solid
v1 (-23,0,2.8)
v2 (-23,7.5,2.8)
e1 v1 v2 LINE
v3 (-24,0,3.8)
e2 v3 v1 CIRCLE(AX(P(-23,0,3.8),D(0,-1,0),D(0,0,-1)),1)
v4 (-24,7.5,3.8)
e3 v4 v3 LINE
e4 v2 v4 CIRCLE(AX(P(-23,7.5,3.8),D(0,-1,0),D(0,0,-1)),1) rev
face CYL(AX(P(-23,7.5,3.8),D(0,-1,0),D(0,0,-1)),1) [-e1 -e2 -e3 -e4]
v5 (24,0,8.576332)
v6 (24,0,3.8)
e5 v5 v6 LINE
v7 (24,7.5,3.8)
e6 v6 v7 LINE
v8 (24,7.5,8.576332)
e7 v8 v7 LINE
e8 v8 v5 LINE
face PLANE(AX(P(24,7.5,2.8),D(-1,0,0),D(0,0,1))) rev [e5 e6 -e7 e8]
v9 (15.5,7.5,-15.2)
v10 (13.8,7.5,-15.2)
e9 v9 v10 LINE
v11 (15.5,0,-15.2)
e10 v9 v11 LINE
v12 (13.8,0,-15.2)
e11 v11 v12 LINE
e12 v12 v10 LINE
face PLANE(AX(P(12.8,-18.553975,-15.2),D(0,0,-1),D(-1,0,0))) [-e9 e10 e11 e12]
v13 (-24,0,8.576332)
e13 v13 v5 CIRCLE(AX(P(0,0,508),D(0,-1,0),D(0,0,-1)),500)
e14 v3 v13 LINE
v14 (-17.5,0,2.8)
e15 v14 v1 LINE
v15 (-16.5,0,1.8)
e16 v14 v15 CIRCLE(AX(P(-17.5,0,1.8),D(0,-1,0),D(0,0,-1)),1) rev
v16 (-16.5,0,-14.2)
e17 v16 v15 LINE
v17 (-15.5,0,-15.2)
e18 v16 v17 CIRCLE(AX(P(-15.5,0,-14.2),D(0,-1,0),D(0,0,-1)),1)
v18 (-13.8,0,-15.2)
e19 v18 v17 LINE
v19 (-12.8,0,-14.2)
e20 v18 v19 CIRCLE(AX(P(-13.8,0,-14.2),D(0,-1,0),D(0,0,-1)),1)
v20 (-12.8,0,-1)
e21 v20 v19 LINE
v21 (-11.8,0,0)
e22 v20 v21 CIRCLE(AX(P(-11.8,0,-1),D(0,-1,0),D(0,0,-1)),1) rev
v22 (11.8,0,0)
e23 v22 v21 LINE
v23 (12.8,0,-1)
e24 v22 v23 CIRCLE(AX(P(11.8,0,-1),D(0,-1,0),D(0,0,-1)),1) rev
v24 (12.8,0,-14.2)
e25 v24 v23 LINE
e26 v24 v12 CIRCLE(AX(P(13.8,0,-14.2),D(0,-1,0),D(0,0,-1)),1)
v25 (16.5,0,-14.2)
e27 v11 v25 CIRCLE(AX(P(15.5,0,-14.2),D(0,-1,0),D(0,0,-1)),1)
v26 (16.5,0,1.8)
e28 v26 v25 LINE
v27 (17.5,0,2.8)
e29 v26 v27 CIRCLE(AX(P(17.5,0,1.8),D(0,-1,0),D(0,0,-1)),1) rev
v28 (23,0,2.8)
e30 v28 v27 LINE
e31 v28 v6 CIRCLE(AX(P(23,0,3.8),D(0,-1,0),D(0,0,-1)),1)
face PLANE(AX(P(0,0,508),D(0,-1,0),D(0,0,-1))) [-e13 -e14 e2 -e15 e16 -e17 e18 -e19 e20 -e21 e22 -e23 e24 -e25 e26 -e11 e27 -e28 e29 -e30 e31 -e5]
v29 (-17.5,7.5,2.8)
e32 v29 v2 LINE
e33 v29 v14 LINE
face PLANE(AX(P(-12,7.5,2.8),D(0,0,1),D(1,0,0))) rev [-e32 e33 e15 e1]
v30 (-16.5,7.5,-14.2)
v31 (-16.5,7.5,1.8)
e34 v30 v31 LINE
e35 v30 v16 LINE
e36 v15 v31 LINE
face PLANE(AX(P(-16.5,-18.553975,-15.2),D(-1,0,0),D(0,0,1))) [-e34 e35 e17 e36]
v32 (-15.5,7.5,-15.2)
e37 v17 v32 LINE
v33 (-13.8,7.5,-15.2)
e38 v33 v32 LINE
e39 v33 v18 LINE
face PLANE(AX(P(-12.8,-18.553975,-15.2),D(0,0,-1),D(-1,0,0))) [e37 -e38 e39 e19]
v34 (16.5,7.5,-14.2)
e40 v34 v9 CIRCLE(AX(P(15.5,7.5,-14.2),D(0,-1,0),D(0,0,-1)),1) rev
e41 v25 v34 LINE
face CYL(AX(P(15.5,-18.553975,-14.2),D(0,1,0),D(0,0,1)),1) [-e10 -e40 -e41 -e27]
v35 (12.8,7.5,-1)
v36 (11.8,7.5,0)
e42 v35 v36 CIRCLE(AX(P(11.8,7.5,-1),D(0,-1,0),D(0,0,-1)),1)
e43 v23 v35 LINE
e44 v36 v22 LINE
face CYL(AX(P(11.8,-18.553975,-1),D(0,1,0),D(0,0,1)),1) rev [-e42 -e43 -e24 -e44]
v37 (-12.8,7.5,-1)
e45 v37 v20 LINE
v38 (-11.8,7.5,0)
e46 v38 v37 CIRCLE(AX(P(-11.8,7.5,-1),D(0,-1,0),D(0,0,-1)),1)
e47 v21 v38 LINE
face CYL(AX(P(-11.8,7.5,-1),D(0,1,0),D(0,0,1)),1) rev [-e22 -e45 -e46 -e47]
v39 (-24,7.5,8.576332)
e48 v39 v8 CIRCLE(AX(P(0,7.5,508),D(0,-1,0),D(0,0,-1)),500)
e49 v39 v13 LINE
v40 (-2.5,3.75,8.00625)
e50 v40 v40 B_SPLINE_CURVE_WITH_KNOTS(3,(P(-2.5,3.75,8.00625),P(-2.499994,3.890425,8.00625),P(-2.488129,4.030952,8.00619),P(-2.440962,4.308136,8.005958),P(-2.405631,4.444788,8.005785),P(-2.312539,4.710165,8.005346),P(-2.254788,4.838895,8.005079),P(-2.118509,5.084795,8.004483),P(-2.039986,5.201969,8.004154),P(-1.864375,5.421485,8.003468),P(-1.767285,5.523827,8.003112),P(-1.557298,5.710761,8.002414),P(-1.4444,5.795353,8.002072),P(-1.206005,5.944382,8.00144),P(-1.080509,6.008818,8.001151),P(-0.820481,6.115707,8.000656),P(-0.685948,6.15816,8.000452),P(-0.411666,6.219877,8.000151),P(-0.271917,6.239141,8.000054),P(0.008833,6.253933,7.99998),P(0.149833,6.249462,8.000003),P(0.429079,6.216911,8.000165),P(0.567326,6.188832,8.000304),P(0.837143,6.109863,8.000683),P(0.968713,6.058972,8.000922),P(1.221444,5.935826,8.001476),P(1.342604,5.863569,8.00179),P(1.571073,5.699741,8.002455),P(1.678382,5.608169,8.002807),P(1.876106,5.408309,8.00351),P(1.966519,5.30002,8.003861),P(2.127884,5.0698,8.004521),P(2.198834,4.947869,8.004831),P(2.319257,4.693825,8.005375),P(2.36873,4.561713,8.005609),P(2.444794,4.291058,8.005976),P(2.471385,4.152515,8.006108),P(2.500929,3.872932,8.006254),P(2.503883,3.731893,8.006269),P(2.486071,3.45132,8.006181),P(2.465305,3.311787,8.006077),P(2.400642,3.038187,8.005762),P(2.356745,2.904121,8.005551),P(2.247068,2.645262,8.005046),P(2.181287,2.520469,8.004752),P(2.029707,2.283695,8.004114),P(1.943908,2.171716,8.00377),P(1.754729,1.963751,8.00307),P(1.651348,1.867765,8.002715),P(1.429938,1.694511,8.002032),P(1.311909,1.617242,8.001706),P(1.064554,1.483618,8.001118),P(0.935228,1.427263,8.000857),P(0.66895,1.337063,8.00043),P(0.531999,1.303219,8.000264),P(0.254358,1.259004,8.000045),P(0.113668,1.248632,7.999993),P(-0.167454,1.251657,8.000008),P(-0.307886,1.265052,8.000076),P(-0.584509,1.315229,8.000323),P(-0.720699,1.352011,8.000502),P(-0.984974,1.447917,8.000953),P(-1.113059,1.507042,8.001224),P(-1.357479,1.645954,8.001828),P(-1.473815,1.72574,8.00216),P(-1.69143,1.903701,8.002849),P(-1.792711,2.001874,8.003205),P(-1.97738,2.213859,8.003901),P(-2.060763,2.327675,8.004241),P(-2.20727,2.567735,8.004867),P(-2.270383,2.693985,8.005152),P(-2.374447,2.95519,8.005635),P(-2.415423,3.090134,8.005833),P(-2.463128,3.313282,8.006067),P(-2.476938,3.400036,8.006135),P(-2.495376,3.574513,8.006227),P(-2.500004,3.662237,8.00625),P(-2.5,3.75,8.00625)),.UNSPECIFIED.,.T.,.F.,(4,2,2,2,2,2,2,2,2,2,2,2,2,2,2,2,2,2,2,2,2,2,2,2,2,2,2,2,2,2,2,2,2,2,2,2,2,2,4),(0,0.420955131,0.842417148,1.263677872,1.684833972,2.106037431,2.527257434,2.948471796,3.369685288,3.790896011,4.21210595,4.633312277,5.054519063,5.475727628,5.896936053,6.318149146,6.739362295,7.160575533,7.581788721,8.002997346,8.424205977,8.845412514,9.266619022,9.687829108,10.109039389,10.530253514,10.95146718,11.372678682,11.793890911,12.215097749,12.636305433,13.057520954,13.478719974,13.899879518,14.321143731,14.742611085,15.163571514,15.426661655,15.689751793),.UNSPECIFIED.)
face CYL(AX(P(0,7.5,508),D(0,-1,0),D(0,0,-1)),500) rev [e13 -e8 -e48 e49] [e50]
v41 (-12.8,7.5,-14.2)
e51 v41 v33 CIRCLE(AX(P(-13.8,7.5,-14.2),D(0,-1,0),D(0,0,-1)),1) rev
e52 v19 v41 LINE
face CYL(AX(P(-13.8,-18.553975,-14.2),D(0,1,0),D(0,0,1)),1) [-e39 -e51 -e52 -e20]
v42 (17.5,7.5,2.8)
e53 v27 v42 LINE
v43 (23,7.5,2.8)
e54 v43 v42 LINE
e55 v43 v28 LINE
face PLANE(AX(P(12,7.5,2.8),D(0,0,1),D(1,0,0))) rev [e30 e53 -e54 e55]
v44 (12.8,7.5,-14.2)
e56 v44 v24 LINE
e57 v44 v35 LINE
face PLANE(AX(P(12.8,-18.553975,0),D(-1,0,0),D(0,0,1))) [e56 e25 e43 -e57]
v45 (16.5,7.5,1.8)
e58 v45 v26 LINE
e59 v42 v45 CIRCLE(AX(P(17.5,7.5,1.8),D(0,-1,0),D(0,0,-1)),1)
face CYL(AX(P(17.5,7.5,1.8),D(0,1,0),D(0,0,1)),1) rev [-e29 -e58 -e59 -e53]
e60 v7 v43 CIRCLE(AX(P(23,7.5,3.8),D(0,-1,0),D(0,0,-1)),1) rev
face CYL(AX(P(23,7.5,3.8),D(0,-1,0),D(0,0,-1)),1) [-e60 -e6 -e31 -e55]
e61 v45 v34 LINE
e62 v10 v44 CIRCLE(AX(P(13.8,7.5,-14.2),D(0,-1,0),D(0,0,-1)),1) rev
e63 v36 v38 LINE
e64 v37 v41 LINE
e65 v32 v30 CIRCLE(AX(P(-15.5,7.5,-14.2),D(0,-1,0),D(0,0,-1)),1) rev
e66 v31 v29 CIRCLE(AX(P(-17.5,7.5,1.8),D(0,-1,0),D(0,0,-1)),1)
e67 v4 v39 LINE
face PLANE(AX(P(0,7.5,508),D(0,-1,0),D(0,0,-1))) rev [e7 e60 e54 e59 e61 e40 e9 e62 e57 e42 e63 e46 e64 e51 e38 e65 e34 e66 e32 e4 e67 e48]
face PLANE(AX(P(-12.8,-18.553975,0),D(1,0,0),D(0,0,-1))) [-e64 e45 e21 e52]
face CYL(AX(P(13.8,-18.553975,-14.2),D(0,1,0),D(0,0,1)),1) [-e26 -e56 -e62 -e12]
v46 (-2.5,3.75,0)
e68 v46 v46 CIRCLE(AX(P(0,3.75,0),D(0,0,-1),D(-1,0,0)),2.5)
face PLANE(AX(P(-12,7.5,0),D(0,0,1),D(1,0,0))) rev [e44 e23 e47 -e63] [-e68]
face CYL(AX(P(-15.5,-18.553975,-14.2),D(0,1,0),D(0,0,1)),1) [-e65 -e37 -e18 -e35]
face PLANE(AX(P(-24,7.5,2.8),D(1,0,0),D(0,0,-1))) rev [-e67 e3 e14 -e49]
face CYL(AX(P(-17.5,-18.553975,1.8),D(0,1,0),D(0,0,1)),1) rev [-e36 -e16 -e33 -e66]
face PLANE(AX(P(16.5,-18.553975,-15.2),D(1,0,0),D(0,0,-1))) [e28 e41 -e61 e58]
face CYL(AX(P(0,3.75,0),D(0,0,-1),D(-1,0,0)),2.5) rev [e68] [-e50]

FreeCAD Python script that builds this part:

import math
import FreeCAD as App
import Part
import Sketcher


def edges_at(feature, points):
    """Names of the edges that pass closest to the given points."""
    edges = feature.Shape.Edges
    near = lambda p: min(range(len(edges)), key=lambda i: edges[i].distToShape(Part.Vertex(*p))[0])
    return sorted({f"Edge{near(p) + 1}" for p in points})

doc = App.newDocument("Part")
body = doc.addObject("PartDesign::Body", "Body")

sketch1 = doc.addObject("Sketcher::SketchObject", "Sketch")
body.addObject(sketch1)
sketch1.AttachmentSupport = (doc.XZ_Plane, [""])
sketch1.MapMode = "FlatFace"
sketch1.addGeometry(Part.LineSegment(App.Vector(12, 0, 0), App.Vector(-12, 0, 0)), False)
sketch1.addGeometry(Part.LineSegment(App.Vector(-12, 0, 0), App.Vector(-12, 2.8, 0)), False)
sketch1.addGeometry(Part.LineSegment(App.Vector(-12, 2.8, 0), App.Vector(-24, 2.8, 0)), False)
sketch1.addGeometry(Part.LineSegment(App.Vector(-24, 2.8, 0), App.Vector(-24, 8.6, 0)), False)
sketch1.addGeometry(Part.ArcOfCircle(Part.Circle(App.Vector(0, 508, 0), App.Vector(0, 0, 1), 500), math.radians(-92.75), math.radians(-87.25)), False)
sketch1.addGeometry(Part.LineSegment(App.Vector(24, 8.6, 0), App.Vector(24, 2.8, 0)), False)
sketch1.addGeometry(Part.LineSegment(App.Vector(24, 2.8, 0), App.Vector(12, 2.8, 0)), False)
sketch1.addGeometry(Part.LineSegment(App.Vector(12, 2.8, 0), App.Vector(12, 0, 0)), False)
sketch1.addConstraint(Sketcher.Constraint("Coincident", 0, 2, 1, 1))
sketch1.addConstraint(Sketcher.Constraint("Coincident", 1, 2, 2, 1))
sketch1.addConstraint(Sketcher.Constraint("Coincident", 2, 2, 3, 1))
sketch1.addConstraint(Sketcher.Constraint("Coincident", 3, 2, 4, 1))
sketch1.addConstraint(Sketcher.Constraint("Coincident", 4, 2, 5, 1))
sketch1.addConstraint(Sketcher.Constraint("Coincident", 5, 2, 6, 1))
sketch1.addConstraint(Sketcher.Constraint("Coincident", 6, 2, 7, 1))
sketch1.addConstraint(Sketcher.Constraint("Coincident", 7, 2, 0, 1))
sketch1.addConstraint(Sketcher.Constraint("Horizontal", 0))
sketch1.addConstraint(Sketcher.Constraint("Vertical", 1))
sketch1.addConstraint(Sketcher.Constraint("Horizontal", 2))
sketch1.addConstraint(Sketcher.Constraint("Vertical", 3))
sketch1.addConstraint(Sketcher.Constraint("Vertical", 5))
sketch1.addConstraint(Sketcher.Constraint("Horizontal", 6))
sketch1.addConstraint(Sketcher.Constraint("Vertical", 7))
sketch1.addConstraint(Sketcher.Constraint("Symmetric", 0, 2, 7, 2, -1, 1))
sketch1.addConstraint(Sketcher.Constraint("Symmetric", 2, 2, 5, 2, -2))
sketch1.addConstraint(Sketcher.Constraint("PointOnObject", 4, 3, -2))
sketch1.addConstraint(Sketcher.Constraint("Radius", 4, 500.0))
sketch1.addConstraint(Sketcher.Constraint("DistanceX", 0, 2, 0, 1, 24.0))
sketch1.addConstraint(Sketcher.Constraint("DistanceX", 2, 2, 2, 1, 12.0))
sketch1.addConstraint(Sketcher.Constraint("DistanceY", 1, 1, 1, 2, 2.8))
sketch1.addConstraint(Sketcher.Constraint("DistanceY", -1, 1, 4, 3, 508.0))
pad1 = doc.addObject("PartDesign::Pad", "Pad")
body.addObject(pad1)
pad1.Profile = sketch1
pad1.Length = 7.5
pad1.Reversed = True

sketch2 = doc.addObject("Sketcher::SketchObject", "Sketch001")
body.addObject(sketch2)
sketch2.AttachmentSupport = (doc.XZ_Plane, [""])
sketch2.MapMode = "FlatFace"
sketch2.AttachmentOffset = App.Placement(App.Vector(0, 0, -7.5), App.Rotation())
sketch2.addGeometry(Part.LineSegment(App.Vector(12.8, 0, 0), App.Vector(12, 0, 0)), False)
sketch2.addGeometry(Part.LineSegment(App.Vector(12, 0, 0), App.Vector(12, 2.8, 0)), False)
sketch2.addGeometry(Part.LineSegment(App.Vector(12, 2.8, 0), App.Vector(16.5, 2.8, 0)), False)
sketch2.addGeometry(Part.LineSegment(App.Vector(16.5, 2.8, 0), App.Vector(16.5, -15.2, 0)), False)
sketch2.addGeometry(Part.LineSegment(App.Vector(16.5, -15.2, 0), App.Vector(12.8, -15.2, 0)), False)
sketch2.addGeometry(Part.LineSegment(App.Vector(12.8, -15.2, 0), App.Vector(12.8, 0, 0)), False)
sketch2.addGeometry(Part.LineSegment(App.Vector(-12, 2.8, 0), App.Vector(-12, 0, 0)), False)
sketch2.addGeometry(Part.LineSegment(App.Vector(-12, 0, 0), App.Vector(-12.8, 0, 0)), False)
sketch2.addGeometry(Part.LineSegment(App.Vector(-12.8, 0, 0), App.Vector(-12.8, -15.2, 0)), False)
sketch2.addGeometry(Part.LineSegment(App.Vector(-12.8, -15.2, 0), App.Vector(-16.5, -15.2, 0)), False)
sketch2.addGeometry(Part.LineSegment(App.Vector(-16.5, -15.2, 0), App.Vector(-16.5, 2.8, 0)), False)
sketch2.addGeometry(Part.LineSegment(App.Vector(-16.5, 2.8, 0), App.Vector(-12, 2.8, 0)), False)
sketch2.addConstraint(Sketcher.Constraint("Coincident", 0, 2, 1, 1))
sketch2.addConstraint(Sketcher.Constraint("Coincident", 1, 2, 2, 1))
sketch2.addConstraint(Sketcher.Constraint("Coincident", 2, 2, 3, 1))
sketch2.addConstraint(Sketcher.Constraint("Coincident", 3, 2, 4, 1))
sketch2.addConstraint(Sketcher.Constraint("Coincident", 4, 2, 5, 1))
sketch2.addConstraint(Sketcher.Constraint("Coincident", 5, 2, 0, 1))
sketch2.addConstraint(Sketcher.Constraint("Coincident", 6, 2, 7, 1))
sketch2.addConstraint(Sketcher.Constraint("Coincident", 7, 2, 8, 1))
sketch2.addConstraint(Sketcher.Constraint("Coincident", 8, 2, 9, 1))
sketch2.addConstraint(Sketcher.Constraint("Coincident", 9, 2, 10, 1))
sketch2.addConstraint(Sketcher.Constraint("Coincident", 10, 2, 11, 1))
sketch2.addConstraint(Sketcher.Constraint("Coincident", 11, 2, 6, 1))
sketch2.addConstraint(Sketcher.Constraint("Horizontal", 0))
sketch2.addConstraint(Sketcher.Constraint("Vertical", 1))
sketch2.addConstraint(Sketcher.Constraint("Horizontal", 2))
sketch2.addConstraint(Sketcher.Constraint("Vertical", 3))
sketch2.addConstraint(Sketcher.Constraint("Horizontal", 4))
sketch2.addConstraint(Sketcher.Constraint("Vertical", 5))
sketch2.addConstraint(Sketcher.Constraint("Vertical", 6))
sketch2.addConstraint(Sketcher.Constraint("Horizontal", 7))
sketch2.addConstraint(Sketcher.Constraint("Vertical", 8))
sketch2.addConstraint(Sketcher.Constraint("Horizontal", 9))
sketch2.addConstraint(Sketcher.Constraint("Vertical", 10))
sketch2.addConstraint(Sketcher.Constraint("Horizontal", 11))
sketch2.addConstraint(Sketcher.Constraint("Symmetric", 0, 2, 6, 2, -1, 1))
sketch2.addConstraint(Sketcher.Constraint("Symmetric", 5, 2, 7, 2, -2))
sketch2.addConstraint(Sketcher.Constraint("Symmetric", 3, 2, 9, 2, -2))
sketch2.addConstraint(Sketcher.Constraint("Horizontal", 2, 2, 10, 2))
sketch2.addConstraint(Sketcher.Constraint("DistanceY", 3, 2, 3, 1, 18.0))
sketch2.addConstraint(Sketcher.Constraint("DistanceX", 0, 2, 0, 1, 0.8))
sketch2.addConstraint(Sketcher.Constraint("DistanceX", 2, 1, 2, 2, 4.5))
sketch2.addConstraint(Sketcher.Constraint("DistanceY", 1, 1, 1, 2, 2.8))
sketch2.addConstraint(Sketcher.Constraint("DistanceX", -1, 1, 0, 2, 12.0))
pad2 = doc.addObject("PartDesign::Pad", "Pad001")
body.addObject(pad2)
pad2.Profile = sketch2
pad2.Length = 7.5
doc.recompute()

fillet = doc.addObject("PartDesign::Fillet", "Fillet")
body.addObject(fillet)
fillet.Base = (pad2, edges_at(pad2, [
    (24, 3.75, 2.8),
    (-24, 3.75, 2.8),
    (16.5, 3.75, 2.8),
    (16.5, 3.75, -15.2),
    (12.8, 3.75, -15.2),
    (12.8, 3.75, 0),
    (-12.8, 3.75, 0),
    (-12.8, 3.75, -15.2),
    (-16.5, 3.75, -15.2),
    (-16.5, 3.75, 2.8),
]))
fillet.Radius = 1

sketch3 = doc.addObject("Sketcher::SketchObject", "Sketch002")
body.addObject(sketch3)
sketch3.AttachmentSupport = (doc.XY_Plane, [""])
sketch3.MapMode = "FlatFace"
sketch3.addGeometry(Part.Circle(App.Vector(0, 3.8, 0), App.Vector(0, 0, 1), 2.5), False)
sketch3.addConstraint(Sketcher.Constraint("PointOnObject", 0, 3, -2))
sketch3.addConstraint(Sketcher.Constraint("Diameter", 0, 5.0))
sketch3.addConstraint(Sketcher.Constraint("DistanceY", -1, 1, 0, 3, 3.75))
doc.recompute()
hole = doc.addObject("PartDesign::Hole", "Hole")
body.addObject(hole)
hole.Profile = sketch3
hole.ThreadType = "None"
hole.Diameter = 5
hole.DepthType = "Dimension"
hole.Depth = 9
hole.DrillPoint = "Angled"
hole.DrillPointAngle = 118
hole.Reversed = True

doc.recompute()
